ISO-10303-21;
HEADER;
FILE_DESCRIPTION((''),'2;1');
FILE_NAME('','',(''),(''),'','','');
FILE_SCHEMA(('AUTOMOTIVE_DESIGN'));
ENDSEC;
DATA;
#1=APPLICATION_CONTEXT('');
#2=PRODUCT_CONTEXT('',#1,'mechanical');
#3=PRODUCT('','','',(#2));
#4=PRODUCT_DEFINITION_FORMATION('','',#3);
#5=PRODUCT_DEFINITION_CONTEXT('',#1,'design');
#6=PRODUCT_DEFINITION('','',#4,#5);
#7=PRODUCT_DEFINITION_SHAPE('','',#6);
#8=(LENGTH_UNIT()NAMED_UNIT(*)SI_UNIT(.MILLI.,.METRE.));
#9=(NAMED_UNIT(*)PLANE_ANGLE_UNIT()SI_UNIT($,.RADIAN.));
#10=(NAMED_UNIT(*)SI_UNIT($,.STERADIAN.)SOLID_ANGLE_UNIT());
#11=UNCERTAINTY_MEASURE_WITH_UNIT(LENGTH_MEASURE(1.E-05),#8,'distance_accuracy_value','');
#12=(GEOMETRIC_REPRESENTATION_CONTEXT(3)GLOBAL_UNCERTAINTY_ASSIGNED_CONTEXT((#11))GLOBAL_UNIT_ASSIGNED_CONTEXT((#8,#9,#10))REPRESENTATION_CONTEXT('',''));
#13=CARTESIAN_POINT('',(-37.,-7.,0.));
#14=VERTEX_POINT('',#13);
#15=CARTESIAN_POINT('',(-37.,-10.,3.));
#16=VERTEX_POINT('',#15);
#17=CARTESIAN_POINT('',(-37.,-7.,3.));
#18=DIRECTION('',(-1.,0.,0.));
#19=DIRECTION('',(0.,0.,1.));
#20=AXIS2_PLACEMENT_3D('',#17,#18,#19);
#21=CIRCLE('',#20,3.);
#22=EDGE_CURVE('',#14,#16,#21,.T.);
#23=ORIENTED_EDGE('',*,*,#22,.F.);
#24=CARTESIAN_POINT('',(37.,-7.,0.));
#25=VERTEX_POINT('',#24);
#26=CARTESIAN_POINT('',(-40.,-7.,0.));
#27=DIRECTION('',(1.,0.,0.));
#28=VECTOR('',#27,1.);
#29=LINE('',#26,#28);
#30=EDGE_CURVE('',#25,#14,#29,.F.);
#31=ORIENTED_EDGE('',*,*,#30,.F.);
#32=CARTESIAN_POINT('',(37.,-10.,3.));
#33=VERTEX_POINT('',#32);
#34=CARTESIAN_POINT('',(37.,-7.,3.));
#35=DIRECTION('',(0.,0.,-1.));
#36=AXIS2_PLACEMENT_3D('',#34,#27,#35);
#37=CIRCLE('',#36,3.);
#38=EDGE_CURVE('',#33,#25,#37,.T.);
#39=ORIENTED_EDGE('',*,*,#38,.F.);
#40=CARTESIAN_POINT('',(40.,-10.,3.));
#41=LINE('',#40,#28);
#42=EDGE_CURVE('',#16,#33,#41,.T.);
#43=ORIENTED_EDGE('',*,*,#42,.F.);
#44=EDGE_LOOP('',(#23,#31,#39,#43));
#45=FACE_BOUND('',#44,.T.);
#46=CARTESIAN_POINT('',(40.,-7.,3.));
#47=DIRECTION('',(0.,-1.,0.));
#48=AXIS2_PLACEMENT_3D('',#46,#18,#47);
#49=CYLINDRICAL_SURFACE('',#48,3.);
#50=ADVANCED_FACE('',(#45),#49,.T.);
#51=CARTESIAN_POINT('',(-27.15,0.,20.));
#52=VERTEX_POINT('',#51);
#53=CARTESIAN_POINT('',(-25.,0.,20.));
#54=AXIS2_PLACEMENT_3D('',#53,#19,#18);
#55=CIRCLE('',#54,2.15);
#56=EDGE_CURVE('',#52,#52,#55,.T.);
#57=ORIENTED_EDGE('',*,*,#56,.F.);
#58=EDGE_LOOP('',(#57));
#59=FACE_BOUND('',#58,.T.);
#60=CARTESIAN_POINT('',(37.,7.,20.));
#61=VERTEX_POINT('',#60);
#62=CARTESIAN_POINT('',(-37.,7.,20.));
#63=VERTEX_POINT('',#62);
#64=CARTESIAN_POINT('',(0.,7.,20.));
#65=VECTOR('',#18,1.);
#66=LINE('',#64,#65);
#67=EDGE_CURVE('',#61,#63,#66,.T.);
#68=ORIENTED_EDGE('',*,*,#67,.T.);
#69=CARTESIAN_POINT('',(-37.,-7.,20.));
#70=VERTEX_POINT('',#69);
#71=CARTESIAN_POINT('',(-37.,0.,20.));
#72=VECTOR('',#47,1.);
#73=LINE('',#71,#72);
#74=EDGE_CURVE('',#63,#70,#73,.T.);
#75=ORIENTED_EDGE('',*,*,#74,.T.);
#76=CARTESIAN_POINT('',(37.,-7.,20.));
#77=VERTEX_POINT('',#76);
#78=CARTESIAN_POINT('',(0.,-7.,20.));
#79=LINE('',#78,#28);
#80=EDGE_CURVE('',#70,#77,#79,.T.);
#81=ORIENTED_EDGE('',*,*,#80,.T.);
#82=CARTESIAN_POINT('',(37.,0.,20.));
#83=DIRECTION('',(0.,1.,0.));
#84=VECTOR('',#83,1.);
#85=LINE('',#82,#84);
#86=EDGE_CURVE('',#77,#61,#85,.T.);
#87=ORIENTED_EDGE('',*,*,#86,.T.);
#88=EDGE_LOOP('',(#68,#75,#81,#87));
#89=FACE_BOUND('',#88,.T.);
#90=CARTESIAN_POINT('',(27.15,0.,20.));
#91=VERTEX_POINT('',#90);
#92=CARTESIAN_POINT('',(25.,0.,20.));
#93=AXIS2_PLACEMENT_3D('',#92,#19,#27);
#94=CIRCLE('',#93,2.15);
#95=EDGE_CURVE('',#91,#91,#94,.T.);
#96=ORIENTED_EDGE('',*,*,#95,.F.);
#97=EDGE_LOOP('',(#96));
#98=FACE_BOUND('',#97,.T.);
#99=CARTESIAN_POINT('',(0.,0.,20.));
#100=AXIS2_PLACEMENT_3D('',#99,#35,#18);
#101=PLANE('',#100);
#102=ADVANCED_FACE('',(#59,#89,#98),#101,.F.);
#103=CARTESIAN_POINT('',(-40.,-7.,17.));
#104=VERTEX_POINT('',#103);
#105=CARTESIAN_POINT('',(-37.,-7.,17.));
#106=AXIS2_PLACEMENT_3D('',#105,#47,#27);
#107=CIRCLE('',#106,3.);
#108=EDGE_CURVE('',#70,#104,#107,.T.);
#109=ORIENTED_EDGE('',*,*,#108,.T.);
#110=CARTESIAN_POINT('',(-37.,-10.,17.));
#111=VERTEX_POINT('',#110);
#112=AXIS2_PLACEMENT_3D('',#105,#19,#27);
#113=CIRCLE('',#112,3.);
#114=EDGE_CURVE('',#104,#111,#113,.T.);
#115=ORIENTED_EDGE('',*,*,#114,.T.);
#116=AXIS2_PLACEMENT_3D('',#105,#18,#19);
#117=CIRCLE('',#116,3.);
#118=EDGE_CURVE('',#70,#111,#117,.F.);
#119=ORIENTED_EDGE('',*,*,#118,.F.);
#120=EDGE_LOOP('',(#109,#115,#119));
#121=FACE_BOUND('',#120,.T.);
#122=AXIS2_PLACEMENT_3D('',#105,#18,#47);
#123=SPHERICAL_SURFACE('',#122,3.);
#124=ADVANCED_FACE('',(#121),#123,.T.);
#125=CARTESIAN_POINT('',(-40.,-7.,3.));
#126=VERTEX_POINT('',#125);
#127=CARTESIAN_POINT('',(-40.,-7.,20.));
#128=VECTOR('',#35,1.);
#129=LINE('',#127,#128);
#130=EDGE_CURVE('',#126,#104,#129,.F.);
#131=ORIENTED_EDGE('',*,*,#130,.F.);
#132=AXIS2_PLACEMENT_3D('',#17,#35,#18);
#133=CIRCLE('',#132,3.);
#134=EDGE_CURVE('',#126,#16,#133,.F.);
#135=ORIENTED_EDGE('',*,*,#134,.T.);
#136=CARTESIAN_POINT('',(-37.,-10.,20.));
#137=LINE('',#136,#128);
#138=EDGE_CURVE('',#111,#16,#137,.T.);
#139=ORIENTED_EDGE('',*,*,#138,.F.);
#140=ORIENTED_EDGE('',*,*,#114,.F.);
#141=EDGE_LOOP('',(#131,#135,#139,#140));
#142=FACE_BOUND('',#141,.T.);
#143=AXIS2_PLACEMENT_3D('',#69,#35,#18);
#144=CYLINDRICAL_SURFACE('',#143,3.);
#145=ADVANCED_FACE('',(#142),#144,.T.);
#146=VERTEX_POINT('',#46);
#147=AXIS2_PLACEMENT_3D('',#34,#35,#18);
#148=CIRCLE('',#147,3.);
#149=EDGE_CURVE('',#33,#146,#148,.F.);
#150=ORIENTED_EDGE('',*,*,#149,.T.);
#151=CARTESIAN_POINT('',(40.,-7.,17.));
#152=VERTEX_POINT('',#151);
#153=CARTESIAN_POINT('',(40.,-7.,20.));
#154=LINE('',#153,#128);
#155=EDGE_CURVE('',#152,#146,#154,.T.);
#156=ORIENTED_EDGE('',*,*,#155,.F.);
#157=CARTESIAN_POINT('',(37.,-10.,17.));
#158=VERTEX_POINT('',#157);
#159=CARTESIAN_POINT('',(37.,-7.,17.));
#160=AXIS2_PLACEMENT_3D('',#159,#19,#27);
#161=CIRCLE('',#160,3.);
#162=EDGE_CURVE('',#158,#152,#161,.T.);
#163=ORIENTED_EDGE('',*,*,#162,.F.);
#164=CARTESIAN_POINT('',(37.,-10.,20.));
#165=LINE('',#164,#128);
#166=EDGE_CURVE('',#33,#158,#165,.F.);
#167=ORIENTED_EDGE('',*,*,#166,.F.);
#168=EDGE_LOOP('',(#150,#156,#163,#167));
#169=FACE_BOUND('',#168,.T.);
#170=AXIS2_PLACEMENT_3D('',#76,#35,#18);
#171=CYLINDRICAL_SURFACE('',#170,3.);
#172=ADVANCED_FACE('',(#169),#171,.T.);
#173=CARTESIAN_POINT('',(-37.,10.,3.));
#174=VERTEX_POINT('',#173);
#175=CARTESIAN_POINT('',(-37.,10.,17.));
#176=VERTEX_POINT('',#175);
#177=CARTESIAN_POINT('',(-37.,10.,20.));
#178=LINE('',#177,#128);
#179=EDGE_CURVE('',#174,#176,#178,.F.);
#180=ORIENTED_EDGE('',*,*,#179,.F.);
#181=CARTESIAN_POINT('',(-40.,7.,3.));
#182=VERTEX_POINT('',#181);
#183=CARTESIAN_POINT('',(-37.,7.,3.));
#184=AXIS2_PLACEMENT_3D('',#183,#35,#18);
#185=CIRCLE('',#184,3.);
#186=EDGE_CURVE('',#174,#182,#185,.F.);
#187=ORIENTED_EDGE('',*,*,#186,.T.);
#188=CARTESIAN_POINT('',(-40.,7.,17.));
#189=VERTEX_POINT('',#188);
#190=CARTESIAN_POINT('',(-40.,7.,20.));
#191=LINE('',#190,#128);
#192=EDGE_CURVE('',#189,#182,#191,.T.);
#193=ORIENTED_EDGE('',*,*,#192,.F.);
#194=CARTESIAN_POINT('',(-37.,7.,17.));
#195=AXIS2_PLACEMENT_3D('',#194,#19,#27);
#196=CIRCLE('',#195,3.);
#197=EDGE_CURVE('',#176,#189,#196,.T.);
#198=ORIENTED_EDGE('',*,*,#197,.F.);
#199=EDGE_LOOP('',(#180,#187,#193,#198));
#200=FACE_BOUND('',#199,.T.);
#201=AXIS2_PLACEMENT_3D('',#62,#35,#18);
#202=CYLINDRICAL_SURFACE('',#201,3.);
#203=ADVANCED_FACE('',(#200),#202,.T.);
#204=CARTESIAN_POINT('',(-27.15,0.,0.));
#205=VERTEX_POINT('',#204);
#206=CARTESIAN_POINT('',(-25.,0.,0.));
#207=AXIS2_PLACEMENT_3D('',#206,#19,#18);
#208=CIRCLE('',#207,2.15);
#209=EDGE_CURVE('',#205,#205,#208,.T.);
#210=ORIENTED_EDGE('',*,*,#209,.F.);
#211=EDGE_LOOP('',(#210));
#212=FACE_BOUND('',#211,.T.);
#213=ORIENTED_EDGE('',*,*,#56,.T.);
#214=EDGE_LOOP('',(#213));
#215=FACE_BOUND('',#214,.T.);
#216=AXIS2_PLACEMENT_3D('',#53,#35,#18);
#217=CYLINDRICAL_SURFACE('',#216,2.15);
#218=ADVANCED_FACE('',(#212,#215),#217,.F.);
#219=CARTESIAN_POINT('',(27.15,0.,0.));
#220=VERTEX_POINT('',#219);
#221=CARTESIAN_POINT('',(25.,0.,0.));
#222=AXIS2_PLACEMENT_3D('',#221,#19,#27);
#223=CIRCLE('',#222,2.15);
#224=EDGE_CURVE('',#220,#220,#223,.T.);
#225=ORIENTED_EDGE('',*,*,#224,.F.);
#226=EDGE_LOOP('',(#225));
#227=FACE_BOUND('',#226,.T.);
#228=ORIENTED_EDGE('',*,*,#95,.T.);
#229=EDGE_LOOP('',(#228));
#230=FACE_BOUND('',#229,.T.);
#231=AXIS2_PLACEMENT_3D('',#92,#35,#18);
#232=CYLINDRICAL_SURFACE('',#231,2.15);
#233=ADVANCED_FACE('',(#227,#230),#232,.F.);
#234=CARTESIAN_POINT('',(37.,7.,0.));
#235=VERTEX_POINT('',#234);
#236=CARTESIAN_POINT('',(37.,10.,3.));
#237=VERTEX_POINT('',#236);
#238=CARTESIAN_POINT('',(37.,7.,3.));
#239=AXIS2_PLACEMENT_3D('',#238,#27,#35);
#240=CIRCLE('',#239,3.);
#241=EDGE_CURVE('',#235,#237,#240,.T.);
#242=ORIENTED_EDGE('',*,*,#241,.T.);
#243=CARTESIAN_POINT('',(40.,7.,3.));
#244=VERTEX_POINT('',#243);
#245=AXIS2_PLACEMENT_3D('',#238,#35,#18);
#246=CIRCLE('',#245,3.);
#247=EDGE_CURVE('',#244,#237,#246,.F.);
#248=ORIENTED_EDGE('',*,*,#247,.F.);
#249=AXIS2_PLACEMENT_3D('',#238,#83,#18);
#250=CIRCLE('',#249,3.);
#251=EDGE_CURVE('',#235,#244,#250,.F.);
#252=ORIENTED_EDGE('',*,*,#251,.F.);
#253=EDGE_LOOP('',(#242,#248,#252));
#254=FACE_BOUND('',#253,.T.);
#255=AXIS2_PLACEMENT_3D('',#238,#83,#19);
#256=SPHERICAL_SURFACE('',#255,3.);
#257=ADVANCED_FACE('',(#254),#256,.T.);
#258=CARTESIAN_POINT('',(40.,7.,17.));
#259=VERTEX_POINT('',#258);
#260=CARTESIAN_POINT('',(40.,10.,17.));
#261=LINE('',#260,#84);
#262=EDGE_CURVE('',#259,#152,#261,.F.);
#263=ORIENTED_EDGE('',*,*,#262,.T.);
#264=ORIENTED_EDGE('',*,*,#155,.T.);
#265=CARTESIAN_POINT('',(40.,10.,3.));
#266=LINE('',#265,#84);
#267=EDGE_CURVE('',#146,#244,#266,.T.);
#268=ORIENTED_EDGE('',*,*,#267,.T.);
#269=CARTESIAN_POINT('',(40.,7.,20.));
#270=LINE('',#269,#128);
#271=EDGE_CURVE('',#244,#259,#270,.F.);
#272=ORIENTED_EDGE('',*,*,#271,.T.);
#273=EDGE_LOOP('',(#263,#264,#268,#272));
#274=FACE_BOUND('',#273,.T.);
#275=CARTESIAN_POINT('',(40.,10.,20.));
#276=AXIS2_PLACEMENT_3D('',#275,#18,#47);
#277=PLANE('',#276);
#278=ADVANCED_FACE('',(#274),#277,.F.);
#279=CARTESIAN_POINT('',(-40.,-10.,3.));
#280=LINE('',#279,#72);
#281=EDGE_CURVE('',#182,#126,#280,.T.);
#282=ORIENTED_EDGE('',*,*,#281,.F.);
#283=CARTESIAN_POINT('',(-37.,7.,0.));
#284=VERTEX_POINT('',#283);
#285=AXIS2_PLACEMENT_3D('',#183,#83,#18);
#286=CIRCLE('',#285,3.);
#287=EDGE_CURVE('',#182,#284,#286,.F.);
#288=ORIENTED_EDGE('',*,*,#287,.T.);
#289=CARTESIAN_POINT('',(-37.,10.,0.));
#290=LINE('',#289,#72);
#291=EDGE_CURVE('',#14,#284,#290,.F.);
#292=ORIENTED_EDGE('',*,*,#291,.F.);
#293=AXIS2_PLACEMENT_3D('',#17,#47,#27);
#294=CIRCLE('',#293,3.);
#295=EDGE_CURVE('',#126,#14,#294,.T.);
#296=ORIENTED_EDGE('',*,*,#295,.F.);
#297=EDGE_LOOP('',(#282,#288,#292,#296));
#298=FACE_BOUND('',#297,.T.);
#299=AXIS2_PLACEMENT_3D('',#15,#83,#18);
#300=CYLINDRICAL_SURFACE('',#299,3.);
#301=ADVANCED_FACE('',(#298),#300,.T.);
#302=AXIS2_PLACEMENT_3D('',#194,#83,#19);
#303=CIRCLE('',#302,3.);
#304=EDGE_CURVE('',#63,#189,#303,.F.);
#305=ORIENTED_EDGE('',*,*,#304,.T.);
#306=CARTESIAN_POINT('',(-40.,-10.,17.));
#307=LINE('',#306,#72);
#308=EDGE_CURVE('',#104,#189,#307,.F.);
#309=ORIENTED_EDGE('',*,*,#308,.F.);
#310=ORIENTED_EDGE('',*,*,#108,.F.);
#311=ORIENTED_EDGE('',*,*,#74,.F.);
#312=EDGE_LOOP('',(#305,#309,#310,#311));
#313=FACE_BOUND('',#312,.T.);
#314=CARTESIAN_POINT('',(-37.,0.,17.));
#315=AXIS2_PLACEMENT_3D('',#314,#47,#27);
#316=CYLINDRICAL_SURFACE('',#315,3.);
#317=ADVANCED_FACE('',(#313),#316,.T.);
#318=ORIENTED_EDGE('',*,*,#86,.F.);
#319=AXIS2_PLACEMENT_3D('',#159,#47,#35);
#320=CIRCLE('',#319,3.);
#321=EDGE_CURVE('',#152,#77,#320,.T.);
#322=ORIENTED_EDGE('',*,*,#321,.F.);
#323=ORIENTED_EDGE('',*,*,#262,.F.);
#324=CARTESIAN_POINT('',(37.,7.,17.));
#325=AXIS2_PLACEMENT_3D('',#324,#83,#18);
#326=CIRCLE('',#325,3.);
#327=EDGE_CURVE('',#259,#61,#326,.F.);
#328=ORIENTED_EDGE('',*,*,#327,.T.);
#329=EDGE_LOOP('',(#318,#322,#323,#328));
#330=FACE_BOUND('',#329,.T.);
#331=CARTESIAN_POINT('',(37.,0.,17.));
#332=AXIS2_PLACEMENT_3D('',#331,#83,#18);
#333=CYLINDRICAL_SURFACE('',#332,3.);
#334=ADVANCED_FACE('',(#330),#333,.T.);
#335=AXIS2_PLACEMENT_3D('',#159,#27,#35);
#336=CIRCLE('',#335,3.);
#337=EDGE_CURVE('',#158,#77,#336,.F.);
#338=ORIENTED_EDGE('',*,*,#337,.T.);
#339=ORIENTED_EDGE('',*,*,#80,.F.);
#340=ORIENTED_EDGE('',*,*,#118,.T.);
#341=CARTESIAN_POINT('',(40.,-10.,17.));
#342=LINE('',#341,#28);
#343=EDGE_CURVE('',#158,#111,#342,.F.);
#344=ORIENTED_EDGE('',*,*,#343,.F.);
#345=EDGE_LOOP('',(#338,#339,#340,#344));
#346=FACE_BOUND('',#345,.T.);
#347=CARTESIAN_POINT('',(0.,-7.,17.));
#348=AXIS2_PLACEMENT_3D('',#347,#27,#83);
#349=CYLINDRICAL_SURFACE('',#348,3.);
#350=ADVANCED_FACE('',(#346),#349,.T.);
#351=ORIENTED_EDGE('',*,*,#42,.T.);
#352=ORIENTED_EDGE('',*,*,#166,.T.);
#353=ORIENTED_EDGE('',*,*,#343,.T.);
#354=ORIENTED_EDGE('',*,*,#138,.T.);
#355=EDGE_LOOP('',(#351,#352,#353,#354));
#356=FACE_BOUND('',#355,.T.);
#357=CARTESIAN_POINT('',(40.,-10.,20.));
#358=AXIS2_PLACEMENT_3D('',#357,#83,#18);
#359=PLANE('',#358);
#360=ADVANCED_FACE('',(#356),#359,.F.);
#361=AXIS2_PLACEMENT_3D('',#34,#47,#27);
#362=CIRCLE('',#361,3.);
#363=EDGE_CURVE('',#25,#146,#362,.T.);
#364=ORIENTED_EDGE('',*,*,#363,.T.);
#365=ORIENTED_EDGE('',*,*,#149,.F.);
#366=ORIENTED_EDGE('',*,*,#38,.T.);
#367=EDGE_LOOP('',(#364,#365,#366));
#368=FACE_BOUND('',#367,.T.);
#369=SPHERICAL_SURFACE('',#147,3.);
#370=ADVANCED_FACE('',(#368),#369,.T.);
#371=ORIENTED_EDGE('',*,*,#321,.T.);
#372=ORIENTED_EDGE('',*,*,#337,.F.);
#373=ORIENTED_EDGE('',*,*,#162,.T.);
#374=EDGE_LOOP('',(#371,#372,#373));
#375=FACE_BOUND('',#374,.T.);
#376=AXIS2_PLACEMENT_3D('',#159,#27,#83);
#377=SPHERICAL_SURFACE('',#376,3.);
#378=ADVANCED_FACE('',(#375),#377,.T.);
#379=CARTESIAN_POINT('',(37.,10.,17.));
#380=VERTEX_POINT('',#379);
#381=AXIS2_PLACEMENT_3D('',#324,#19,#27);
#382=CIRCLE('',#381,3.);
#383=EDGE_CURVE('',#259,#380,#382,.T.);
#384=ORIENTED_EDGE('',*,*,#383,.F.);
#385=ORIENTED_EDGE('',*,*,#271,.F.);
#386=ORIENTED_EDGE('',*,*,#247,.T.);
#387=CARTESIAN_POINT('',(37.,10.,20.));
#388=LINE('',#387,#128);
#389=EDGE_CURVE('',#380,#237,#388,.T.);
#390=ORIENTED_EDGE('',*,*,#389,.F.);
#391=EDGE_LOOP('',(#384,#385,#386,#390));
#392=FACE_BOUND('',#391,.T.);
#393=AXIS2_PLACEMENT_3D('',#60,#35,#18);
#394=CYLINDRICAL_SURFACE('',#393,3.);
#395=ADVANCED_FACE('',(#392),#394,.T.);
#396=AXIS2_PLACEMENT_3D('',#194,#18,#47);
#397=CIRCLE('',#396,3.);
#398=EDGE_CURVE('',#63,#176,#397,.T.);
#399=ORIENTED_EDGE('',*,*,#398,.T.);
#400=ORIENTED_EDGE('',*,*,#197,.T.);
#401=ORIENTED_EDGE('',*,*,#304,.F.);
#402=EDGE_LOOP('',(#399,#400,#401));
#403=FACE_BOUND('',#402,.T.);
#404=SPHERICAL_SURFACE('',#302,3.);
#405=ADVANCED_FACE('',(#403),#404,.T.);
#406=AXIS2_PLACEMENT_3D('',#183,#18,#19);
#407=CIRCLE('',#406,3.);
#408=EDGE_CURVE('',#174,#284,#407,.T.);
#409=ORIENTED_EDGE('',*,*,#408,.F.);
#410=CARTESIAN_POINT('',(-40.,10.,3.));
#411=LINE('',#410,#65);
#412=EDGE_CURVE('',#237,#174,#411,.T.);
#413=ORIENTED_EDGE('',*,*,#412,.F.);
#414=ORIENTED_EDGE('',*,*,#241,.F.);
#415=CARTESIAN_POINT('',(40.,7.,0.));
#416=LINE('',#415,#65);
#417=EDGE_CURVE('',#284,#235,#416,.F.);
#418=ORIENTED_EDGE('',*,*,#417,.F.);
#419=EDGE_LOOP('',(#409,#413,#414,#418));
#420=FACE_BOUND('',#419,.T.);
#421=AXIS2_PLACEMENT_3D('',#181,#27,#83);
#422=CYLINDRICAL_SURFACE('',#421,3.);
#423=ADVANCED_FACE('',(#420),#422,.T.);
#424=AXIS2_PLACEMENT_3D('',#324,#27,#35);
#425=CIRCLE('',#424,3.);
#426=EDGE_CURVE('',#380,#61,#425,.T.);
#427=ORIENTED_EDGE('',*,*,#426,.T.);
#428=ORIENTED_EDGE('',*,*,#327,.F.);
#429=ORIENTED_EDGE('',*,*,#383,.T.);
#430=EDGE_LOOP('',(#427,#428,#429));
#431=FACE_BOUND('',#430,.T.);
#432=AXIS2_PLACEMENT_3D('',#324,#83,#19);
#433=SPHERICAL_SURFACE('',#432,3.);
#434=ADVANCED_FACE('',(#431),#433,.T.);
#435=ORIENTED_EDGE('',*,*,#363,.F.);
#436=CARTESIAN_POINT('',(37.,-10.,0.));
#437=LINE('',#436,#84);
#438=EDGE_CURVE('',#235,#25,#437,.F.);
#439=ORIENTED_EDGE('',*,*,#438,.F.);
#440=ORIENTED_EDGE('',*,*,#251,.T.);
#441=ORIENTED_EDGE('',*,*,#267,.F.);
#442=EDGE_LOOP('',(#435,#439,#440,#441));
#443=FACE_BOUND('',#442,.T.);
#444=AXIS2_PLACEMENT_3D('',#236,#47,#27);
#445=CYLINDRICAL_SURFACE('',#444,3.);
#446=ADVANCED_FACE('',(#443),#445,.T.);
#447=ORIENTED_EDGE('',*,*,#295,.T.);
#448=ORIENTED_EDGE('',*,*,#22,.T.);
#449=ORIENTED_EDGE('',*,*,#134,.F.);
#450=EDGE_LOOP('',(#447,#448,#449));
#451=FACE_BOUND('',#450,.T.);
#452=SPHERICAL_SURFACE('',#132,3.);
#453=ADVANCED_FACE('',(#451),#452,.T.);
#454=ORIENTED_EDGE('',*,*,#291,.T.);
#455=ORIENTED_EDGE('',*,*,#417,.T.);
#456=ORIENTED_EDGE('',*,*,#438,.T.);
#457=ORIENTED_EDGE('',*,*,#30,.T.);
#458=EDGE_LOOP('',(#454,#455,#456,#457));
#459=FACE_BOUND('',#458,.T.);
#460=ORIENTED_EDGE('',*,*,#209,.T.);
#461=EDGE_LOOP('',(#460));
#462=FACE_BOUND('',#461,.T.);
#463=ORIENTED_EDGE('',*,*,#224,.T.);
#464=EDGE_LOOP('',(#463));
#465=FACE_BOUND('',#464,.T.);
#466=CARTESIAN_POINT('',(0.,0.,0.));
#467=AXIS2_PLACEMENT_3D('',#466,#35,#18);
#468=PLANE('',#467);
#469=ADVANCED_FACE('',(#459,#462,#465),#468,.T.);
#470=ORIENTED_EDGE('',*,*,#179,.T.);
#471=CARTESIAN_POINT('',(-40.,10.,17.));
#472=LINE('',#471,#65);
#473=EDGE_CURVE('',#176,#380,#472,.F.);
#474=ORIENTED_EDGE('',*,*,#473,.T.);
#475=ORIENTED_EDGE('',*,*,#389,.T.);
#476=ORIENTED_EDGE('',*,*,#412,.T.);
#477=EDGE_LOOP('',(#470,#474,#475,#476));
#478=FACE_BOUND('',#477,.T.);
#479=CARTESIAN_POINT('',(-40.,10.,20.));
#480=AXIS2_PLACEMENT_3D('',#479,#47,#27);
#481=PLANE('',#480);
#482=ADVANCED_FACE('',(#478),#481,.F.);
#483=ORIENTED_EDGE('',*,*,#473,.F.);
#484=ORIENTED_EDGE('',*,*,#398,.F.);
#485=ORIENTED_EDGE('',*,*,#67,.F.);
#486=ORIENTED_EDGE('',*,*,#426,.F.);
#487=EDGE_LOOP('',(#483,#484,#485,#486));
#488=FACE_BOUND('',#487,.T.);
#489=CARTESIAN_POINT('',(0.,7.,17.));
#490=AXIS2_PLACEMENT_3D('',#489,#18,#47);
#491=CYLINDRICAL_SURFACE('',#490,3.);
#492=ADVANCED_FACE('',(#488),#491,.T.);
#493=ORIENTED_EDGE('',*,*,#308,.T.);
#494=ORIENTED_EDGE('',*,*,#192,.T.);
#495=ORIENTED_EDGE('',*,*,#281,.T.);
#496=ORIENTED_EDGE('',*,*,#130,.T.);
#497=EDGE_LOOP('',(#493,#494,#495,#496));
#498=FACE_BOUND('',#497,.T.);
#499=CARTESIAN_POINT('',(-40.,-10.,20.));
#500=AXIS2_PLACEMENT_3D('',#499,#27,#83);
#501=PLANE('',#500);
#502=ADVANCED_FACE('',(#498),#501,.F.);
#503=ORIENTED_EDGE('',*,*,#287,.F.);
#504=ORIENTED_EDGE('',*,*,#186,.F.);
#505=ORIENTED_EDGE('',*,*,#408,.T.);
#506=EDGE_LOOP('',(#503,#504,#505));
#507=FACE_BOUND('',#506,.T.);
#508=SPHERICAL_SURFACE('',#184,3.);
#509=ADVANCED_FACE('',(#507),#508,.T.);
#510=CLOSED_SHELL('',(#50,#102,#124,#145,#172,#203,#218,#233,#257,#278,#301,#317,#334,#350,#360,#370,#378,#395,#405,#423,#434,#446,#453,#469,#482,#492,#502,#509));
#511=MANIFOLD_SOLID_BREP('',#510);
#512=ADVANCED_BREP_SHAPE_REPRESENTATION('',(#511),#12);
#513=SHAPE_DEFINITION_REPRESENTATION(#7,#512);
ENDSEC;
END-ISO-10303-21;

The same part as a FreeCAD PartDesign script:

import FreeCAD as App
import Part
import Sketcher
Q = App.Units.Quantity


def edges_at(feature, points):
    """Names of the edges that pass closest to the given points."""
    edges = feature.Shape.Edges
    near = lambda p: min(range(len(edges)), key=lambda i: edges[i].distToShape(Part.Vertex(*p))[0])
    return sorted({f"Edge{near(p) + 1}" for p in points})

doc = App.newDocument("Part")
params = doc.addObject("Spreadsheet::Sheet", "Params")
for row, (alias, value) in enumerate([
    ("sketch1_diameter", "4.3 mm"),
    ("sketch1_width", "80 mm"),
    ("sketch1_height", "20 mm"),
    ("pad1_length", "20 mm"),
    ("fillet_radius", "3 mm"),
], start=1):
    params.set(f"A{row}", alias)
    params.set(f"B{row}", "=" + value)
    params.setAlias(f"B{row}", alias)

body = doc.addObject("PartDesign::Body", "Body")

# Sketch on XY plane
sketch1 = body.newObject("Sketcher::SketchObject", "Sketch")
sketch1.AttachmentSupport = (doc.getObject("XY_Plane"), [""])
sketch1.MapMode = "FlatFace"
sketch1.addGeometry([
    Part.LineSegment(App.Vector(-40, 10, 0), App.Vector(-40, -10, 0)),  # 0
    Part.LineSegment(App.Vector(-40, -10, 0), App.Vector(40, -10, 0)),  # 1
    Part.LineSegment(App.Vector(40, -10, 0), App.Vector(40, 10, 0)),  # 2
    Part.LineSegment(App.Vector(40, 10, 0), App.Vector(-40, 10, 0)),  # 3
    Part.Circle(App.Vector(-25, 0, 0), App.Vector(0, 0, 1), 2.1),  # 4
    Part.Circle(App.Vector(25, 0, 0), App.Vector(0, 0, 1), 2.1),  # 5
], False)
sketch1.addConstraint([
    Sketcher.Constraint("Coincident", 0, 2, 1, 1),
    Sketcher.Constraint("Coincident", 1, 2, 2, 1),
    Sketcher.Constraint("Coincident", 2, 2, 3, 1),
    Sketcher.Constraint("Coincident", 3, 2, 0, 1),
    Sketcher.Constraint("Vertical", 0),
    Sketcher.Constraint("Horizontal", 1),
    Sketcher.Constraint("Vertical", 2),
    Sketcher.Constraint("Horizontal", 3),
    Sketcher.Constraint("Equal", 4, 5),
    Sketcher.Constraint("Symmetric", 4, 3, 5, 3, -1, 1),
    Sketcher.Constraint("Symmetric", 0, 2, 2, 2, -1, 1),
    Sketcher.Constraint("PointOnObject", 4, 3, -1),
    Sketcher.Constraint("Diameter", 4, Q("4.3 mm")),
    Sketcher.Constraint("DistanceX", 1, 1, 1, 2, Q("80 mm")),
    Sketcher.Constraint("DistanceY", 0, 2, 0, 1, Q("20 mm")),
    Sketcher.Constraint("DistanceX", 4, 3, -1, 1, Q("25 mm")),
])
sketch1.setExpression("Constraints[12]", "Params.sketch1_diameter")
sketch1.setExpression("Constraints[13]", "Params.sketch1_width")
sketch1.setExpression("Constraints[14]", "Params.sketch1_height")
pad1 = body.newObject("PartDesign::Pad", "Pad")
pad1.Profile = sketch1
pad1.setExpression("Length", "Params.pad1_length")
doc.recompute()

fillet = body.newObject("PartDesign::Fillet", "Fillet")
fillet.Base = (pad1, edges_at(pad1, [
    (40, 0, 20),
    (0, 10, 20),
    (-40, 0, 20),
    (0, 10, 0),
    (40, 0, 0),
    (0, -10, 0),
    (-40, 0, 0),
    (-40, 10, 10),
    (40, 10, 10),
    (40, -10, 10),
    (-40, -10, 10),
    (0, -10, 20),
]))
fillet.setExpression("Radius", "Params.fillet_radius")

doc.recompute()
